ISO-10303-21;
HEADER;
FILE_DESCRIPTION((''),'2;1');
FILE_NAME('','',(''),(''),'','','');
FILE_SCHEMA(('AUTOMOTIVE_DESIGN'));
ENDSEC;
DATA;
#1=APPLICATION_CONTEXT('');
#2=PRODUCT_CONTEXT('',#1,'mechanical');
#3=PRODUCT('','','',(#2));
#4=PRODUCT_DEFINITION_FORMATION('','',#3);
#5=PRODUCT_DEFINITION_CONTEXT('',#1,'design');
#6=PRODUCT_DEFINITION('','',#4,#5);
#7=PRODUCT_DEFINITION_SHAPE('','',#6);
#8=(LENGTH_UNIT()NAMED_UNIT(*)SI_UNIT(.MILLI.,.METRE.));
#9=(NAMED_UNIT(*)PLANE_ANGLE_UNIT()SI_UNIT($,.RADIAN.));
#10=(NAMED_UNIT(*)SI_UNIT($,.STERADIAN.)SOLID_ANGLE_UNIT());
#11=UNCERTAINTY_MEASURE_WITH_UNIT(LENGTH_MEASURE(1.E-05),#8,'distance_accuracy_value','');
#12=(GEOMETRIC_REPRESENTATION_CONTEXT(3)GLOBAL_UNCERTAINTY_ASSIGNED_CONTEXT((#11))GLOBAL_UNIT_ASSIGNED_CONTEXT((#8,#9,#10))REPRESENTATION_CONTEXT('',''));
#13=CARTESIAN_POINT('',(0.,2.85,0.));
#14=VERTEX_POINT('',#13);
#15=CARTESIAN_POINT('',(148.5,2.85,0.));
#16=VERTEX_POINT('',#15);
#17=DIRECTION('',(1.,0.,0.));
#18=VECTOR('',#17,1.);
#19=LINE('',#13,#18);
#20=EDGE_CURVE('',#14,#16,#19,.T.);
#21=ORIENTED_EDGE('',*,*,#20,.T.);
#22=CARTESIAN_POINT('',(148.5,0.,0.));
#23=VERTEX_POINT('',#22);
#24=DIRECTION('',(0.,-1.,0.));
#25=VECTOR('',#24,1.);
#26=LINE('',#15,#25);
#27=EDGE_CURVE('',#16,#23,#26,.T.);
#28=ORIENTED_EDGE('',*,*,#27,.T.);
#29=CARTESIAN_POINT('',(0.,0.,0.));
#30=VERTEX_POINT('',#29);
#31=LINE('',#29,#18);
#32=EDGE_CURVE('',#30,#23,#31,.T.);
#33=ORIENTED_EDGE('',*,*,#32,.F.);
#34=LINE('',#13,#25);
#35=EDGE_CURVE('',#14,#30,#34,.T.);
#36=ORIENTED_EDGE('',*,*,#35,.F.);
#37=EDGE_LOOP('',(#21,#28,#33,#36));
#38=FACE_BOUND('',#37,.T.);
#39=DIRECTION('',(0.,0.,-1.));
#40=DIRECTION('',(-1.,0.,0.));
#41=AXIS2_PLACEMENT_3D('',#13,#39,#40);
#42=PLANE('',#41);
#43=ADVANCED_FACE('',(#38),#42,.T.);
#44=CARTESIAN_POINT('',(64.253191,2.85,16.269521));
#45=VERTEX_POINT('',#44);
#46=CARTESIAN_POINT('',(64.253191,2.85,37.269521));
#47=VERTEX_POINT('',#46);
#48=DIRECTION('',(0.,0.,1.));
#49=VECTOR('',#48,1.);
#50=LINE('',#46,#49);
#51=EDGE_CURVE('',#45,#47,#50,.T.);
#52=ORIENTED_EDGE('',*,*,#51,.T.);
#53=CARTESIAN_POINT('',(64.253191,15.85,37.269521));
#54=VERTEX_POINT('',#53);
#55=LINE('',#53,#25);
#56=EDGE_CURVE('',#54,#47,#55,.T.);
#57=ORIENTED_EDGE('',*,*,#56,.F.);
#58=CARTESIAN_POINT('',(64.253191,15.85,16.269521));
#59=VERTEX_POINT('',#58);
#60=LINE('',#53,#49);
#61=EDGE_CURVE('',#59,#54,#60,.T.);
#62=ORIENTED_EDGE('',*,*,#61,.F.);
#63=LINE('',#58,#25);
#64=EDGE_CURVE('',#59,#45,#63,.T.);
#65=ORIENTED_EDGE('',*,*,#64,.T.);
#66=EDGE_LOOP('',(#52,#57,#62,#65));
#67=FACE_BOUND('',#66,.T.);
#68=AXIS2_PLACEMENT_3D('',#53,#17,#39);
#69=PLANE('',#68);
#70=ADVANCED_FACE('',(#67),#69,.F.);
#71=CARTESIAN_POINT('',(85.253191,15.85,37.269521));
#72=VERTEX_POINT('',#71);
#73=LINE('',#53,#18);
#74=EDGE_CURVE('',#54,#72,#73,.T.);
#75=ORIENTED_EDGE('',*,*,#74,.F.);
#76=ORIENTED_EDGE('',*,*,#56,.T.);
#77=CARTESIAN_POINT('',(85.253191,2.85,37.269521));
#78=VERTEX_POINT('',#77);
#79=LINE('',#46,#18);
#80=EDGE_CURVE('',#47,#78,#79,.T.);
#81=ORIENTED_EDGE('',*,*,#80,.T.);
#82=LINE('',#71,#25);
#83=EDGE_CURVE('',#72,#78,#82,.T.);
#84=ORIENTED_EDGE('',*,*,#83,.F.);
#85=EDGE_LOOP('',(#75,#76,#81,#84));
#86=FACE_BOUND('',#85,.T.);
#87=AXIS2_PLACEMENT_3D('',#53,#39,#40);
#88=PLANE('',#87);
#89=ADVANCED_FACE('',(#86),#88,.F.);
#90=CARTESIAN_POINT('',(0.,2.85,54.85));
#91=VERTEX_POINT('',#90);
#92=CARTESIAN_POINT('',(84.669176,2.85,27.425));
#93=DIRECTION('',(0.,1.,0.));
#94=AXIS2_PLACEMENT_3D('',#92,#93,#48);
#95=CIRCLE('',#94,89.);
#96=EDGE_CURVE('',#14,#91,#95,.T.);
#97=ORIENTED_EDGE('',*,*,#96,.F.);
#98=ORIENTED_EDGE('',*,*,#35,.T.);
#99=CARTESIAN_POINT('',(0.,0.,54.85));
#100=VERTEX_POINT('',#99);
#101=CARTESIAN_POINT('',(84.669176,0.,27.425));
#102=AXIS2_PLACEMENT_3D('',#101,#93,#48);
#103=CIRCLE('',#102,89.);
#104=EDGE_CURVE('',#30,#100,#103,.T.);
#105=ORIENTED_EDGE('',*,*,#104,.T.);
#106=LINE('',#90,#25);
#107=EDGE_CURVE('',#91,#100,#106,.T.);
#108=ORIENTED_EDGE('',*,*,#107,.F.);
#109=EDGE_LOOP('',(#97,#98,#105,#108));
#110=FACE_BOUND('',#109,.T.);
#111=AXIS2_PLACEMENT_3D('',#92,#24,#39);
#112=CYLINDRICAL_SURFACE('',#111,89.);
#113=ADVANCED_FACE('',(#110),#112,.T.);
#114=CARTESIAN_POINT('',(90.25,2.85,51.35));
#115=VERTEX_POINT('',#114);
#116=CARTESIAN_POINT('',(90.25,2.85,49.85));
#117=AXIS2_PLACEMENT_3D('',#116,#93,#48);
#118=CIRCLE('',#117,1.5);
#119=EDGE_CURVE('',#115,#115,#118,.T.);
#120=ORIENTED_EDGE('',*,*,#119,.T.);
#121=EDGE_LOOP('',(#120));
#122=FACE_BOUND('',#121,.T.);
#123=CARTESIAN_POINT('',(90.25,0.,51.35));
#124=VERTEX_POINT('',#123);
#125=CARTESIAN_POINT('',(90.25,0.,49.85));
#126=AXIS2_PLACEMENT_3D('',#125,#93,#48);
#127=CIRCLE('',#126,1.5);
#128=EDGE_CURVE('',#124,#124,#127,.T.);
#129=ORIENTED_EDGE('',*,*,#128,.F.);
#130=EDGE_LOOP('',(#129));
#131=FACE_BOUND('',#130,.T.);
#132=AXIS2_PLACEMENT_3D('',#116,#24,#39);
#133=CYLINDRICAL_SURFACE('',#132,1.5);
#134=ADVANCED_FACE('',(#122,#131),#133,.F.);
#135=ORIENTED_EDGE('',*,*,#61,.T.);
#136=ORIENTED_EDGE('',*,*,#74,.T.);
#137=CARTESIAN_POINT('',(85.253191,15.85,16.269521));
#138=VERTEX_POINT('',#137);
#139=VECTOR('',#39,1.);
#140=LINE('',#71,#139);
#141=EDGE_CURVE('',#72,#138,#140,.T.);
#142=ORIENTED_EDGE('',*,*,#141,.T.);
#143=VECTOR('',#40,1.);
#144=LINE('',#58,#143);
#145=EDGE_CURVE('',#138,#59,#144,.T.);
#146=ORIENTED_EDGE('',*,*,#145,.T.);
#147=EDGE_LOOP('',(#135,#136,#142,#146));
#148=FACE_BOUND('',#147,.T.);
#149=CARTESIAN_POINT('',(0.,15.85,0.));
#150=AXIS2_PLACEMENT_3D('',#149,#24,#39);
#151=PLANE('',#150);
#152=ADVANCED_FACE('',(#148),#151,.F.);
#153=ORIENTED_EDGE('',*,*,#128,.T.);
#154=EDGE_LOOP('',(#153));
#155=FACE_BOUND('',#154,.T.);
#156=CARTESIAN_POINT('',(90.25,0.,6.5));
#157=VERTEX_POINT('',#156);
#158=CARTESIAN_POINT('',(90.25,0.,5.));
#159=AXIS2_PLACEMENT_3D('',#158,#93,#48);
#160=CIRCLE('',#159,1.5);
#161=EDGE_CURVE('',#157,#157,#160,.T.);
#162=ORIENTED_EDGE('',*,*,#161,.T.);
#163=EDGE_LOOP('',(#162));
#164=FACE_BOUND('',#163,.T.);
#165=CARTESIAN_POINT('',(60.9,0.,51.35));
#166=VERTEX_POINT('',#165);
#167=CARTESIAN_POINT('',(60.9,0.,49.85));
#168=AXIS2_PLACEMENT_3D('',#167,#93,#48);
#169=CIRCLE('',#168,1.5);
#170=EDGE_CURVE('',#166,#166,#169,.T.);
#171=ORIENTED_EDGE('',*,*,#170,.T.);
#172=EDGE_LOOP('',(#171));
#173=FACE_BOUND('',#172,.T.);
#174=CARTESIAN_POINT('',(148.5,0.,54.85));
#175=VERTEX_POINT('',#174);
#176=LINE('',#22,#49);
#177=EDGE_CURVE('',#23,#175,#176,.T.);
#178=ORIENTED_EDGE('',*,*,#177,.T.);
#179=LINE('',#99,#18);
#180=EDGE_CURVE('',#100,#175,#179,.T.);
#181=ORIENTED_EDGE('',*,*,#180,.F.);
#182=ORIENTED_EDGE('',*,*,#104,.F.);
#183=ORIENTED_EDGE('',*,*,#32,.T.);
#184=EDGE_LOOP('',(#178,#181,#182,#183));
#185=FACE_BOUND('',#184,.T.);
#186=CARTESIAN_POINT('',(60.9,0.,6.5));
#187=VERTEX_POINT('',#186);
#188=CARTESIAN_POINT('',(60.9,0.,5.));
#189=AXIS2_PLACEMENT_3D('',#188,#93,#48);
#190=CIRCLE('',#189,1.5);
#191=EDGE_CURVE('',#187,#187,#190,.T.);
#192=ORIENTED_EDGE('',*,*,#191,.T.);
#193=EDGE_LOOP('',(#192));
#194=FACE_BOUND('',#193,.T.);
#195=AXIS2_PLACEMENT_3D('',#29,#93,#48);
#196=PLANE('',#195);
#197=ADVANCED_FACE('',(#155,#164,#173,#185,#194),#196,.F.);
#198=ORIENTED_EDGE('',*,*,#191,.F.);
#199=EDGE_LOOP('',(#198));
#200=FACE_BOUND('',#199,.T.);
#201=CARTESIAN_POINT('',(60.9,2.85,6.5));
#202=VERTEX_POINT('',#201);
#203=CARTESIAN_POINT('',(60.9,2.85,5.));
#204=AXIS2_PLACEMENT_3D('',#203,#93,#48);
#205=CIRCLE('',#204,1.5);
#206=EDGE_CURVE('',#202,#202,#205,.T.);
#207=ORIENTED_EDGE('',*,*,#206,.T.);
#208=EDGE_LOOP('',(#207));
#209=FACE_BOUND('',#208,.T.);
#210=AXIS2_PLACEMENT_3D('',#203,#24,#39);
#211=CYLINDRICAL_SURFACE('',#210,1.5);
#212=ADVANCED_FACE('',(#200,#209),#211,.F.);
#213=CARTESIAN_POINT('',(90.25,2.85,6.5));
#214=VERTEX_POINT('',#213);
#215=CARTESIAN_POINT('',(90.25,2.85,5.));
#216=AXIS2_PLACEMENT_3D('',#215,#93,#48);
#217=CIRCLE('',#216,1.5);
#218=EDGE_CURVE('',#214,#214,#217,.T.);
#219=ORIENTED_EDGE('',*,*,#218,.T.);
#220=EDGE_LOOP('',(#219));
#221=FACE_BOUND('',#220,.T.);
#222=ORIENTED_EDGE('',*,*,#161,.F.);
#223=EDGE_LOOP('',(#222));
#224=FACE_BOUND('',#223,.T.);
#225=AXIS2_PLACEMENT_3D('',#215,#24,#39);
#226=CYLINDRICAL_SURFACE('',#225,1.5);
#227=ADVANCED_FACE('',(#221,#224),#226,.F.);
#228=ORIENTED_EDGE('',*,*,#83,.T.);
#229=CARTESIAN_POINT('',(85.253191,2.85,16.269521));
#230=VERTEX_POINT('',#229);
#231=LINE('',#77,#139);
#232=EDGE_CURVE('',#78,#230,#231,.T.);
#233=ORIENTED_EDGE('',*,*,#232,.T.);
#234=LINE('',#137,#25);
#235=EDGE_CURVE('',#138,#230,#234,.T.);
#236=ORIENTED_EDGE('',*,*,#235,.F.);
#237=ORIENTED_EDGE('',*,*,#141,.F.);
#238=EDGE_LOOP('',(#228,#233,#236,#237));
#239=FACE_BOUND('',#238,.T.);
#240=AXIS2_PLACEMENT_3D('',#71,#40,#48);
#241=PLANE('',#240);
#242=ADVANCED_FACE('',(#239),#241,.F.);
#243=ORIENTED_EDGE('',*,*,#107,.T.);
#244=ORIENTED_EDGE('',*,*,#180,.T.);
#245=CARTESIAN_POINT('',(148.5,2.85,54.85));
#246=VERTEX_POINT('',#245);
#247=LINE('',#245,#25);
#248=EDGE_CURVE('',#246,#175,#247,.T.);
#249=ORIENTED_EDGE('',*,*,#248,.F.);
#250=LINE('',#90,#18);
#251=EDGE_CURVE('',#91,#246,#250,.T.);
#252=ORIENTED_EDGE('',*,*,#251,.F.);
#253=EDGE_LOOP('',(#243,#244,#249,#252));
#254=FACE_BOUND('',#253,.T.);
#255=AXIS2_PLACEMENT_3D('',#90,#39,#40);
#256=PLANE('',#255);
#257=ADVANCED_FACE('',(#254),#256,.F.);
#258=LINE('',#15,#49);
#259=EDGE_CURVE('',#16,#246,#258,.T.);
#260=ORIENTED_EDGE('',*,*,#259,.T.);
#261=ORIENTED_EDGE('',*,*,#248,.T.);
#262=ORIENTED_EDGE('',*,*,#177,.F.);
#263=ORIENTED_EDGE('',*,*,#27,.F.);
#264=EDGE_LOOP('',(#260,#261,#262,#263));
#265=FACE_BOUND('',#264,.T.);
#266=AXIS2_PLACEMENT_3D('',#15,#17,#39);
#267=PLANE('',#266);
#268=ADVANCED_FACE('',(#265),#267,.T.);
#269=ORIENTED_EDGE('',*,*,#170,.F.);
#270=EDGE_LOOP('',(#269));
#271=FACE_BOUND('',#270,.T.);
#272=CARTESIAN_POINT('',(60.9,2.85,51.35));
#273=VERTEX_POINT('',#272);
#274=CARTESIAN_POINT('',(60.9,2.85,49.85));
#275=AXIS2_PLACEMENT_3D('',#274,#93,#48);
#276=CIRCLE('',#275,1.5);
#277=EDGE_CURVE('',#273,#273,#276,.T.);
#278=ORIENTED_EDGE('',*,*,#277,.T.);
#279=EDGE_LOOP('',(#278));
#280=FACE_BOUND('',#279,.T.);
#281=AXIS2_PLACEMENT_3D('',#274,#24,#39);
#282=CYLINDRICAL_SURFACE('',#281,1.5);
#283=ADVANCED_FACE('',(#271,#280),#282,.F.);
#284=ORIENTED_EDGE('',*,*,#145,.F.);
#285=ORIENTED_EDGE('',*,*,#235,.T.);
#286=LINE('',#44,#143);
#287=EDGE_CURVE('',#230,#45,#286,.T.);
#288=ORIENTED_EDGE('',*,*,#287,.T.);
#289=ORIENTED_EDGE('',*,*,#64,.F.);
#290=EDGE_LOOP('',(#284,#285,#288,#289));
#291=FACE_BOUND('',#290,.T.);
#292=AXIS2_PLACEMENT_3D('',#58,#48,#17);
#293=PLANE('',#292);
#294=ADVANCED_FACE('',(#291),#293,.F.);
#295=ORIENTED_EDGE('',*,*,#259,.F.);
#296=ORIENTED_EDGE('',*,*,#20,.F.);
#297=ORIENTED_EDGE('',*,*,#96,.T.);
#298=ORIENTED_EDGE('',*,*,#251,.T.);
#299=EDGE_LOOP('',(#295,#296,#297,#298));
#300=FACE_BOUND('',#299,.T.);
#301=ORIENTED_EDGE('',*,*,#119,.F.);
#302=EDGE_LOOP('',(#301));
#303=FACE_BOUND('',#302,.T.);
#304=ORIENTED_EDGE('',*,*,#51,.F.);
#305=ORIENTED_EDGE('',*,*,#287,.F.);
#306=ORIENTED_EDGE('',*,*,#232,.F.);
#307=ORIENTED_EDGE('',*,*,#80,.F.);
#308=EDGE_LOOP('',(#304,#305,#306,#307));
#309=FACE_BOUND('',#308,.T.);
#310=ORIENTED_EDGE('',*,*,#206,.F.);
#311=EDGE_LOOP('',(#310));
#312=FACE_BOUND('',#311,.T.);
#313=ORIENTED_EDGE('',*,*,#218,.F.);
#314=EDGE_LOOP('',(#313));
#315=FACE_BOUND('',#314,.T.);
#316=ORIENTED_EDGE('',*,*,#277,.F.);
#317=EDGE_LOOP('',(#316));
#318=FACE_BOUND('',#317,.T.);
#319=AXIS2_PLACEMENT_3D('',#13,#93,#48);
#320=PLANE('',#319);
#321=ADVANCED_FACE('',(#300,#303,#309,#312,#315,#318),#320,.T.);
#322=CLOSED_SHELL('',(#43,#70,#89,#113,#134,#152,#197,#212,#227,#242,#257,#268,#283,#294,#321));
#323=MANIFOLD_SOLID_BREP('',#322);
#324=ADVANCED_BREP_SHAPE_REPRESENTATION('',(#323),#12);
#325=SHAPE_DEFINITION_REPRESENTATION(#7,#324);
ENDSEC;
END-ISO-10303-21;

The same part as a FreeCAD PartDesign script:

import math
import FreeCAD as App
import Part
import Sketcher

doc = App.newDocument("Part")
body = doc.addObject("PartDesign::Body", "Body")

# Sketch on XZ plane
sketch1 = doc.addObject("Sketcher::SketchObject", "Sketch")
body.addObject(sketch1)
sketch1.AttachmentSupport = (doc.XZ_Plane, [""])
sketch1.MapMode = "FlatFace"
sketch1.addGeometry([
    Part.LineSegment(App.Vector(0, 54.85, 0), App.Vector(148.5, 54.85, 0)),  # 0
    Part.LineSegment(App.Vector(148.5, 54.85, 0), App.Vector(148.5, 0, 0)),  # 1
    Part.LineSegment(App.Vector(148.5, 0, 0), App.Vector(0, 0, 0)),  # 2
    Part.ArcOfCircle(Part.Circle(App.Vector(84.669176, 27.425, 0), App.Vector(0, 0, 1), 89), math.radians(162.052461), math.radians(197.947539)),  # 3
    Part.Circle(App.Vector(60.9, 49.85, 0), App.Vector(0, 0, 1), 1.5),  # 4
    Part.Circle(App.Vector(90.25, 49.85, 0), App.Vector(0, 0, 1), 1.5),  # 5
    Part.Circle(App.Vector(60.9, 5, 0), App.Vector(0, 0, 1), 1.5),  # 6
    Part.Circle(App.Vector(90.25, 5, 0), App.Vector(0, 0, 1), 1.5),  # 7
], False)
sketch1.addConstraint([
    Sketcher.Constraint("Coincident", 0, 2, 1, 1),
    Sketcher.Constraint("Coincident", 1, 2, 2, 1),
    Sketcher.Constraint("Coincident", 2, 2, 3, 2),
    Sketcher.Constraint("Coincident", 3, 1, 0, 1),
    Sketcher.Constraint("Horizontal", 0),
    Sketcher.Constraint("Vertical", 1),
    Sketcher.Constraint("Horizontal", 2),
    Sketcher.Constraint("Coincident", 2, 2, -1, 1),
    Sketcher.Constraint("Equal", 4, 5),
    Sketcher.Constraint("Equal", 5, 6),
    Sketcher.Constraint("Equal", 6, 7),
    Sketcher.Constraint("PointOnObject", 3, 1, -2),
    Sketcher.Constraint("Horizontal", 4, 3, 5, 3),
    Sketcher.Constraint("Horizontal", 6, 3, 7, 3),
    Sketcher.Constraint("Vertical", 4, 3, 6, 3),
    Sketcher.Constraint("Vertical", 5, 3, 7, 3),
    Sketcher.Constraint("Diameter", 4, 3.0),
    Sketcher.Constraint("Radius", 3, 89.0),
    Sketcher.Constraint("DistanceX", 0, 1, 0, 2, 148.5),
    Sketcher.Constraint("DistanceY", -1, 1, 6, 3, 5.0),
    Sketcher.Constraint("DistanceY", 5, 3, 0, 2, 5.0),
    Sketcher.Constraint("DistanceY", 1, 2, 1, 1, 54.85),
    Sketcher.Constraint("DistanceX", -1, 1, 4, 3, 60.9),
    Sketcher.Constraint("DistanceX", -1, 1, 5, 3, 90.25),
])
pad1 = doc.addObject("PartDesign::Pad", "Pad")
body.addObject(pad1)
pad1.Profile = sketch1
pad1.Length = 2.85
pad1.Reversed = True

# Sketch on XZ plane
sketch2 = doc.addObject("Sketcher::SketchObject", "Sketch001")
body.addObject(sketch2)
sketch2.AttachmentSupport = (doc.XZ_Plane, [""])
sketch2.MapMode = "FlatFace"
sketch2.AttachmentOffset = App.Placement(App.Vector(0, 0, -2.85), App.Rotation())
sketch2.addGeometry([
    Part.LineSegment(App.Vector(64.253191, 16.269521, 0), App.Vector(64.253191, 37.269521, 0)),
    Part.LineSegment(App.Vector(64.253191, 37.269521, 0), App.Vector(85.253191, 37.269521, 0)),
    Part.LineSegment(App.Vector(85.253191, 37.269521, 0), App.Vector(85.253191, 16.269521, 0)),
    Part.LineSegment(App.Vector(85.253191, 16.269521, 0), App.Vector(64.253191, 16.269521, 0)),
], False)
sketch2.addConstraint([
    Sketcher.Constraint("Coincident", 0, 2, 1, 1),
    Sketcher.Constraint("Coincident", 1, 2, 2, 1),
    Sketcher.Constraint("Coincident", 2, 2, 3, 1),
    Sketcher.Constraint("Coincident", 3, 2, 0, 1),
    Sketcher.Constraint("Vertical", 0),
    Sketcher.Constraint("Horizontal", 1),
    Sketcher.Constraint("Vertical", 2),
    Sketcher.Constraint("Horizontal", 3),
    Sketcher.Constraint("Equal", 3, 0),
    Sketcher.Constraint("DistanceX", 1, 1, 1, 2, 21.0),
    Sketcher.Constraint("DistanceX", -1, 1, 0, 2, 64.253191),
    Sketcher.Constraint("DistanceY", -1, 1, 0, 2, 37.269521),
])
pad2 = doc.addObject("PartDesign::Pad", "Pad001")
body.addObject(pad2)
pad2.Profile = sketch2
pad2.Length = 13
pad2.Reversed = True

doc.recompute()
